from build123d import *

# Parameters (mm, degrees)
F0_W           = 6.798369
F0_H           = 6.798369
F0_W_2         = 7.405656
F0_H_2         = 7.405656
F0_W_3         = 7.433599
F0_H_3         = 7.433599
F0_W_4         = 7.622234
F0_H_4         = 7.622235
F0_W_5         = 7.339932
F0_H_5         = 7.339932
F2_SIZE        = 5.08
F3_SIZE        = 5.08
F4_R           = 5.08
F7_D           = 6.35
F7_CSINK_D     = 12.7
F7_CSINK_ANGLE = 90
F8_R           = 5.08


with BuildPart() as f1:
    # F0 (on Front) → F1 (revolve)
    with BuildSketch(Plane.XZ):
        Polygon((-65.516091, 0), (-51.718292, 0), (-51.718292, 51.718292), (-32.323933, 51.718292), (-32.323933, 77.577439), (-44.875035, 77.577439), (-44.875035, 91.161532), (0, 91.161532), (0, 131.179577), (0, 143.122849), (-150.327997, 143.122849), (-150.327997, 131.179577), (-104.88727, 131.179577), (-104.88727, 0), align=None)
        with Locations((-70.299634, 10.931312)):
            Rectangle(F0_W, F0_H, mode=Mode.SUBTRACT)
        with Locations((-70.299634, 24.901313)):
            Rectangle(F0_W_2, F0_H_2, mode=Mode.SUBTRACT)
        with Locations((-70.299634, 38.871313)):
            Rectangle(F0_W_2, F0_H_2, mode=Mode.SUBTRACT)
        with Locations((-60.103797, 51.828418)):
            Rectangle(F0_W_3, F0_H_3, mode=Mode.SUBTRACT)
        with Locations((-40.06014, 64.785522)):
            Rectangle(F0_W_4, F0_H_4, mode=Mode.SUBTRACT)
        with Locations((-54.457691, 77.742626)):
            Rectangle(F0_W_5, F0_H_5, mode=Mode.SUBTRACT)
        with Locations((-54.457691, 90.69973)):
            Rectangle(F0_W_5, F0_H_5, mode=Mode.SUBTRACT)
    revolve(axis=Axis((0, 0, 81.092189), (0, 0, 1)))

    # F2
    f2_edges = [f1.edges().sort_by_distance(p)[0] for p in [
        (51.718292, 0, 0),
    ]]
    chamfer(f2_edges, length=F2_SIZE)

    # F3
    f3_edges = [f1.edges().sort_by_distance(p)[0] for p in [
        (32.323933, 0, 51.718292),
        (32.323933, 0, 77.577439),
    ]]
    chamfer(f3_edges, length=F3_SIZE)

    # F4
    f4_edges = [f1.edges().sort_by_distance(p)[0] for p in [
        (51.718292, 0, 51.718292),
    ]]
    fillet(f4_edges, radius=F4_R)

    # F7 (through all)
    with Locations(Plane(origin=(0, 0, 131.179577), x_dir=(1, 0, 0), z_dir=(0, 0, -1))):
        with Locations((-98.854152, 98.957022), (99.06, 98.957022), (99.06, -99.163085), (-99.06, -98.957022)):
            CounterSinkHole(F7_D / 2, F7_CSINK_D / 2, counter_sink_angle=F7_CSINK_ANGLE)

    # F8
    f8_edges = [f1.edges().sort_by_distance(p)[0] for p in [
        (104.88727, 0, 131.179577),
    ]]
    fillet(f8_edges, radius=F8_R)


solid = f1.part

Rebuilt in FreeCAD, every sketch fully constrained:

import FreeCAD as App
import Part
import Sketcher

V = App.Vector
Q = App.Units.Quantity


def edges_at(feature, points):
    """Names of the edges that pass closest to the given points."""
    edges = feature.Shape.Edges
    near = lambda p: min(range(len(edges)), key=lambda i: edges[i].distToShape(Part.Vertex(*p))[0])
    return sorted({f"Edge{near(p) + 1}" for p in points})

doc = App.newDocument("Part")
params = doc.addObject("Spreadsheet::Sheet", "Params")
for row, (alias, value) in enumerate([
    ("revolution_angle", "360 deg"),
    ("chamfer_size", "0.2 in"),
    ("chamfer2_size", "0.2 in"),
    ("fillet_radius", "0.2 in"),
    ("sketch2_diameter", "0.25 in"),
    ("hole_diameter", "0.25 in"),
    ("hole_csink_diameter", "0.5 in"),
    ("fillet2_radius", "0.2 in"),
], start=1):
    params.set(f"A{row}", alias)
    params.set(f"B{row}", "=" + value)
    params.setAlias(f"B{row}", alias)

body = doc.addObject("PartDesign::Body", "Body")

sketch1 = body.newObject("Sketcher::SketchObject", "Sketch")
sketch1.AttachmentSupport = (doc.getObject("XZ_Plane"), [""])
sketch1.MapMode = "FlatFace"
sketch1.addGeometry(Part.LineSegment(V(-51.718292, 0, 0), V(-51.718292, 51.718292, 0)), False)
sketch1.addGeometry(Part.LineSegment(V(-51.718292, 51.718292, 0), V(-32.323933, 51.718292, 0)), False)
sketch1.addGeometry(Part.LineSegment(V(-32.323933, 51.718292, 0), V(-32.323933, 77.577439, 0)), False)
sketch1.addGeometry(Part.LineSegment(V(-32.323933, 77.577439, 0), V(-44.875035, 77.577439, 0)), False)
sketch1.addGeometry(Part.LineSegment(V(-44.875035, 77.577439, 0), V(-44.875035, 91.161532, 0)), False)
sketch1.addGeometry(Part.LineSegment(V(-44.875035, 91.161532, 0), V(0, 91.161532, 0)), False)
sketch1.addGeometry(Part.LineSegment(V(0, 91.161532, 0), V(0, 143.122849, 0)), False)
sketch1.addGeometry(Part.LineSegment(V(0, 143.122849, 0), V(-150.327997, 143.122849, 0)), False)
sketch1.addGeometry(Part.LineSegment(V(-150.327997, 143.122849, 0), V(-150.327997, 131.179577, 0)), False)
sketch1.addGeometry(Part.LineSegment(V(-150.327997, 131.179577, 0), V(-104.88727, 131.179577, 0)), False)
sketch1.addGeometry(Part.LineSegment(V(-104.88727, 131.179577, 0), V(-104.88727, 0, 0)), False)
sketch1.addGeometry(Part.LineSegment(V(-104.88727, 0, 0), V(-51.718292, 0, 0)), False)
sketch1.addGeometry(Part.LineSegment(V(-66.900449, 7.532127, 0), V(-73.698819, 7.532127, 0)), False)
sketch1.addGeometry(Part.LineSegment(V(-73.698819, 7.532127, 0), V(-73.698819, 14.330497, 0)), False)
sketch1.addGeometry(Part.LineSegment(V(-73.698819, 14.330497, 0), V(-66.900449, 14.330497, 0)), False)
sketch1.addGeometry(Part.LineSegment(V(-66.900449, 14.330497, 0), V(-66.900449, 7.532127, 0)), False)
sketch1.addGeometry(Part.LineSegment(V(-66.596806, 21.198485, 0), V(-74.002462, 21.198485, 0)), False)
sketch1.addGeometry(Part.LineSegment(V(-74.002462, 21.198485, 0), V(-74.002462, 28.604141, 0)), False)
sketch1.addGeometry(Part.LineSegment(V(-74.002462, 28.604141, 0), V(-66.596806, 28.604141, 0)), False)
sketch1.addGeometry(Part.LineSegment(V(-66.596806, 28.604141, 0), V(-66.596806, 21.198485, 0)), False)
sketch1.addGeometry(Part.LineSegment(V(-66.596806, 35.168485, 0), V(-74.002462, 35.168485, 0)), False)
sketch1.addGeometry(Part.LineSegment(V(-74.002462, 35.168485, 0), V(-74.002462, 42.574141, 0)), False)
sketch1.addGeometry(Part.LineSegment(V(-74.002462, 42.574141, 0), V(-66.596806, 42.574141, 0)), False)
sketch1.addGeometry(Part.LineSegment(V(-66.596806, 42.574141, 0), V(-66.596806, 35.168485, 0)), False)
sketch1.addGeometry(Part.LineSegment(V(-56.386997, 48.111618, 0), V(-63.820597, 48.111618, 0)), False)
sketch1.addGeometry(Part.LineSegment(V(-63.820597, 48.111618, 0), V(-63.820597, 55.545217, 0)), False)
sketch1.addGeometry(Part.LineSegment(V(-63.820597, 55.545217, 0), V(-56.386997, 55.545217, 0)), False)
sketch1.addGeometry(Part.LineSegment(V(-56.386997, 55.545217, 0), V(-56.386997, 48.111618, 0)), False)
sketch1.addGeometry(Part.LineSegment(V(-36.249023, 60.974404, 0), V(-43.871257, 60.974404, 0)), False)
sketch1.addGeometry(Part.LineSegment(V(-43.871257, 60.974404, 0), V(-43.871257, 68.596639, 0)), False)
sketch1.addGeometry(Part.LineSegment(V(-43.871257, 68.596639, 0), V(-36.249023, 68.596639, 0)), False)
sketch1.addGeometry(Part.LineSegment(V(-36.249023, 68.596639, 0), V(-36.249023, 60.974404, 0)), False)
sketch1.addGeometry(Part.LineSegment(V(-50.787725, 74.07266, 0), V(-58.127657, 74.07266, 0)), False)
sketch1.addGeometry(Part.LineSegment(V(-58.127657, 74.07266, 0), V(-58.127657, 81.412592, 0)), False)
sketch1.addGeometry(Part.LineSegment(V(-58.127657, 81.412592, 0), V(-50.787725, 81.412592, 0)), False)
sketch1.addGeometry(Part.LineSegment(V(-50.787725, 81.412592, 0), V(-50.787725, 74.07266, 0)), False)
sketch1.addGeometry(Part.LineSegment(V(-50.787725, 87.029764, 0), V(-58.127657, 87.029764, 0)), False)
sketch1.addGeometry(Part.LineSegment(V(-58.127657, 87.029764, 0), V(-58.127657, 94.369696, 0)), False)
sketch1.addGeometry(Part.LineSegment(V(-58.127657, 94.369696, 0), V(-50.787725, 94.369696, 0)), False)
sketch1.addGeometry(Part.LineSegment(V(-50.787725, 94.369696, 0), V(-50.787725, 87.029764, 0)), False)
sketch1.addConstraint(Sketcher.Constraint("Coincident", 0, 2, 1, 1))
sketch1.addConstraint(Sketcher.Constraint("Coincident", 1, 2, 2, 1))
sketch1.addConstraint(Sketcher.Constraint("Coincident", 2, 2, 3, 1))
sketch1.addConstraint(Sketcher.Constraint("Coincident", 3, 2, 4, 1))
sketch1.addConstraint(Sketcher.Constraint("Coincident", 4, 2, 5, 1))
sketch1.addConstraint(Sketcher.Constraint("Coincident", 5, 2, 6, 1))
sketch1.addConstraint(Sketcher.Constraint("Coincident", 6, 2, 7, 1))
sketch1.addConstraint(Sketcher.Constraint("Coincident", 7, 2, 8, 1))
sketch1.addConstraint(Sketcher.Constraint("Coincident", 8, 2, 9, 1))
sketch1.addConstraint(Sketcher.Constraint("Coincident", 9, 2, 10, 1))
sketch1.addConstraint(Sketcher.Constraint("Coincident", 10, 2, 11, 1))
sketch1.addConstraint(Sketcher.Constraint("Coincident", 11, 2, 0, 1))
sketch1.addConstraint(Sketcher.Constraint("Coincident", 12, 2, 13, 1))
sketch1.addConstraint(Sketcher.Constraint("Coincident", 13, 2, 14, 1))
sketch1.addConstraint(Sketcher.Constraint("Coincident", 14, 2, 15, 1))
sketch1.addConstraint(Sketcher.Constraint("Coincident", 15, 2, 12, 1))
sketch1.addConstraint(Sketcher.Constraint("Coincident", 16, 2, 17, 1))
sketch1.addConstraint(Sketcher.Constraint("Coincident", 17, 2, 18, 1))
sketch1.addConstraint(Sketcher.Constraint("Coincident", 18, 2, 19, 1))
sketch1.addConstraint(Sketcher.Constraint("Coincident", 19, 2, 16, 1))
sketch1.addConstraint(Sketcher.Constraint("Coincident", 20, 2, 21, 1))
sketch1.addConstraint(Sketcher.Constraint("Coincident", 21, 2, 22, 1))
sketch1.addConstraint(Sketcher.Constraint("Coincident", 22, 2, 23, 1))
sketch1.addConstraint(Sketcher.Constraint("Coincident", 23, 2, 20, 1))
sketch1.addConstraint(Sketcher.Constraint("Coincident", 24, 2, 25, 1))
sketch1.addConstraint(Sketcher.Constraint("Coincident", 25, 2, 26, 1))
sketch1.addConstraint(Sketcher.Constraint("Coincident", 26, 2, 27, 1))
sketch1.addConstraint(Sketcher.Constraint("Coincident", 27, 2, 24, 1))
sketch1.addConstraint(Sketcher.Constraint("Coincident", 28, 2, 29, 1))
sketch1.addConstraint(Sketcher.Constraint("Coincident", 29, 2, 30, 1))
sketch1.addConstraint(Sketcher.Constraint("Coincident", 30, 2, 31, 1))
sketch1.addConstraint(Sketcher.Constraint("Coincident", 31, 2, 28, 1))
sketch1.addConstraint(Sketcher.Constraint("Coincident", 32, 2, 33, 1))
sketch1.addConstraint(Sketcher.Constraint("Coincident", 33, 2, 34, 1))
sketch1.addConstraint(Sketcher.Constraint("Coincident", 34, 2, 35, 1))
sketch1.addConstraint(Sketcher.Constraint("Coincident", 35, 2, 32, 1))
sketch1.addConstraint(Sketcher.Constraint("Coincident", 36, 2, 37, 1))
sketch1.addConstraint(Sketcher.Constraint("Coincident", 37, 2, 38, 1))
sketch1.addConstraint(Sketcher.Constraint("Coincident", 38, 2, 39, 1))
sketch1.addConstraint(Sketcher.Constraint("Coincident", 39, 2, 36, 1))
sketch1.addConstraint(Sketcher.Constraint("Vertical", 0))
sketch1.addConstraint(Sketcher.Constraint("Horizontal", 1))
sketch1.addConstraint(Sketcher.Constraint("Vertical", 2))
sketch1.addConstraint(Sketcher.Constraint("Horizontal", 3))
sketch1.addConstraint(Sketcher.Constraint("Vertical", 4))
sketch1.addConstraint(Sketcher.Constraint("Horizontal", 5))
sketch1.addConstraint(Sketcher.Constraint("Vertical", 6))
sketch1.addConstraint(Sketcher.Constraint("Horizontal", 7))
sketch1.addConstraint(Sketcher.Constraint("Vertical", 8))
sketch1.addConstraint(Sketcher.Constraint("Horizontal", 9))
sketch1.addConstraint(Sketcher.Constraint("Vertical", 10))
sketch1.addConstraint(Sketcher.Constraint("Horizontal", 11))
sketch1.addConstraint(Sketcher.Constraint("Horizontal", 12))
sketch1.addConstraint(Sketcher.Constraint("Vertical", 13))
sketch1.addConstraint(Sketcher.Constraint("Horizontal", 14))
sketch1.addConstraint(Sketcher.Constraint("Vertical", 15))
sketch1.addConstraint(Sketcher.Constraint("Horizontal", 16))
sketch1.addConstraint(Sketcher.Constraint("Vertical", 17))
sketch1.addConstraint(Sketcher.Constraint("Horizontal", 18))
sketch1.addConstraint(Sketcher.Constraint("Vertical", 19))
sketch1.addConstraint(Sketcher.Constraint("Horizontal", 20))
sketch1.addConstraint(Sketcher.Constraint("Vertical", 21))
sketch1.addConstraint(Sketcher.Constraint("Horizontal", 22))
sketch1.addConstraint(Sketcher.Constraint("Vertical", 23))
sketch1.addConstraint(Sketcher.Constraint("Horizontal", 24))
sketch1.addConstraint(Sketcher.Constraint("Vertical", 25))
sketch1.addConstraint(Sketcher.Constraint("Horizontal", 26))
sketch1.addConstraint(Sketcher.Constraint("Vertical", 27))
sketch1.addConstraint(Sketcher.Constraint("Horizontal", 28))
sketch1.addConstraint(Sketcher.Constraint("Vertical", 29))
sketch1.addConstraint(Sketcher.Constraint("Horizontal", 30))
sketch1.addConstraint(Sketcher.Constraint("Vertical", 31))
sketch1.addConstraint(Sketcher.Constraint("Horizontal", 32))
sketch1.addConstraint(Sketcher.Constraint("Vertical", 33))
sketch1.addConstraint(Sketcher.Constraint("Horizontal", 34))
sketch1.addConstraint(Sketcher.Constraint("Vertical", 35))
sketch1.addConstraint(Sketcher.Constraint("Horizontal", 36))
sketch1.addConstraint(Sketcher.Constraint("Vertical", 37))
sketch1.addConstraint(Sketcher.Constraint("Horizontal", 38))
sketch1.addConstraint(Sketcher.Constraint("Vertical", 39))
sketch1.addConstraint(Sketcher.Constraint("PointOnObject", 5, 2, -2))
sketch1.addConstraint(Sketcher.Constraint("PointOnObject", 10, 2, -1))
sketch1.addConstraint(Sketcher.Constraint("Vertical", 17, 2, 20, 2))
sketch1.addConstraint(Sketcher.Constraint("Vertical", 19, 2, 22, 2))
sketch1.addConstraint(Sketcher.Constraint("Vertical", 33, 2, 36, 2))
sketch1.addConstraint(Sketcher.Constraint("Vertical", 35, 2, 38, 2))
sketch1.addConstraint(Sketcher.Constraint("Equal", 14, 13))
sketch1.addConstraint(Sketcher.Constraint("Equal", 22, 17))
sketch1.addConstraint(Sketcher.Constraint("Equal", 19, 21))
sketch1.addConstraint(Sketcher.Constraint("Equal", 26, 25))
sketch1.addConstraint(Sketcher.Constraint("Equal", 30, 29))
sketch1.addConstraint(Sketcher.Constraint("Equal", 38, 33))
sketch1.addConstraint(Sketcher.Constraint("Equal", 35, 37))
sketch1.addConstraint(Sketcher.Constraint("DistanceY", 16, 2, 20, 2, Q("0.55 in")))
sketch1.addConstraint(Sketcher.Constraint("DistanceX", 24, 2, 24, 1, Q("7.433599 mm")))
sketch1.addConstraint(Sketcher.Constraint("DistanceX", 1, 1, 1, 2, Q("19.394359 mm")))
sketch1.addConstraint(Sketcher.Constraint("DistanceX", 11, 1, 11, 2, Q("53.168978 mm")))
sketch1.addConstraint(Sketcher.Constraint("DistanceX", 12, 2, 12, 1, Q("6.798369 mm")))
sketch1.addConstraint(Sketcher.Constraint("DistanceX", 32, 2, 32, 1, Q("7.339932 mm")))
sketch1.addConstraint(Sketcher.Constraint("DistanceY", 0, 1, 0, 2, Q("51.718292 mm")))
sketch1.addConstraint(Sketcher.Constraint("DistanceY", 29, 2, 3, 2, Q("8.9808 mm")))
sketch1.addConstraint(Sketcher.Constraint("DistanceX", 32, 2, 29, 2, Q("14.2564 mm")))
sketch1.addConstraint(Sketcher.Constraint("DistanceX", 3, 2, 3, 1, Q("12.551102 mm")))
sketch1.addConstraint(Sketcher.Constraint("DistanceX", 5, 1, 5, 2, Q("44.875035 mm")))
sketch1.addConstraint(Sketcher.Constraint("DistanceX", 7, 2, 7, 1, Q("150.327997 mm")))
sketch1.addConstraint(Sketcher.Constraint("DistanceX", 16, 2, 16, 1, Q("7.405656 mm")))
sketch1.addConstraint(Sketcher.Constraint("DistanceX", 28, 2, 28, 1, Q("7.622234 mm")))
sketch1.addConstraint(Sketcher.Constraint("DistanceY", 2, 1, 2, 2, Q("25.859147 mm")))
sketch1.addConstraint(Sketcher.Constraint("DistanceY", 4, 1, 4, 2, Q("13.584093 mm")))
sketch1.addConstraint(Sketcher.Constraint("DistanceY", 6, 1, 6, 2, Q("51.961317 mm")))
sketch1.addConstraint(Sketcher.Constraint("DistanceY", 8, 2, 8, 1, Q("11.943272 mm")))
sketch1.addConstraint(Sketcher.Constraint("DistanceX", 12, 2, -1, 1, Q("73.698819 mm")))
sketch1.addConstraint(Sketcher.Constraint("DistanceX", 16, 2, -1, 1, Q("74.002462 mm")))
sketch1.addConstraint(Sketcher.Constraint("DistanceY", -1, 1, 17, 2, Q("28.604141 mm")))
sketch1.addConstraint(Sketcher.Constraint("DistanceY", -1, 1, 24, 2, Q("48.111618 mm")))
sketch1.addConstraint(Sketcher.Constraint("DistanceY", -1, 1, 32, 2, Q("74.07266 mm")))
sketch1.addConstraint(Sketcher.Constraint("DistanceY", 12, 2, 3, 2, Q("70.045311 mm")))
sketch1.addConstraint(Sketcher.Constraint("DistanceX", 22, 2, 24, 2, Q("2.77621 mm")))
sketch1.addConstraint(Sketcher.Constraint("DistanceX", 26, 2, 28, 2, Q("12.51574 mm")))
sketch1.addConstraint(Sketcher.Constraint("DistanceY", 33, 2, 36, 2, Q("5.617172 mm")))
revolution = body.newObject("PartDesign::Revolution", "Revolution")
revolution.Profile = sketch1
revolution.ReferenceAxis = (sketch1, ["V_Axis"])
revolution.setExpression("Angle", "Params.revolution_angle")
doc.recompute()

chamfer = body.newObject("PartDesign::Chamfer", "Chamfer")
chamfer.Base = (revolution, edges_at(revolution, [(51.718, 0, 0)]))
chamfer.setExpression("Size", "Params.chamfer_size")
doc.recompute()

chamfer2 = body.newObject("PartDesign::Chamfer", "Chamfer001")
chamfer2.Base = (chamfer, edges_at(chamfer, [(32.324, 0, 51.718), (32.324, 0, 77.577)]))
chamfer2.setExpression("Size", "Params.chamfer2_size")
doc.recompute()

fillet = body.newObject("PartDesign::Fillet", "Fillet")
fillet.Base = (chamfer2, edges_at(chamfer2, [(51.718, 0, 51.718)]))
fillet.setExpression("Radius", "Params.fillet_radius")

sketch2 = body.newObject("Sketcher::SketchObject", "Sketch001")
sketch2.AttachmentSupport = (doc.getObject("XY_Plane"), [""])
sketch2.MapMode = "FlatFace"
sketch2.AttachmentOffset = App.Placement(V(0, 0, 131.179577), App.Rotation())
sketch2.addGeometry(Part.Circle(V(-98.854152, -98.957022, 0), V(0, 0, 1), 3.175), False)
sketch2.addGeometry(Part.Circle(V(99.06, -98.957022, 0), V(0, 0, 1), 3.175), False)
sketch2.addGeometry(Part.Circle(V(99.06, 99.163085, 0), V(0, 0, 1), 3.175), False)
sketch2.addGeometry(Part.Circle(V(-99.06, 98.957022, 0), V(0, 0, 1), 3.175), False)
sketch2.addConstraint(Sketcher.Constraint("Equal", 0, 1))
sketch2.addConstraint(Sketcher.Constraint("Equal", 1, 2))
sketch2.addConstraint(Sketcher.Constraint("Equal", 2, 3))
sketch2.addConstraint(Sketcher.Constraint("Symmetric", 1, 3, 3, 3, -1, 1))
sketch2.addConstraint(Sketcher.Constraint("Horizontal", 0, 3, 1, 3))
sketch2.addConstraint(Sketcher.Constraint("Vertical", 1, 3, 2, 3))
sketch2.addConstraint(Sketcher.Constraint("Diameter", 0, Q("0.25 in")))
sketch2.addConstraint(Sketcher.Constraint("DistanceX", -1, 1, 1, 3, Q("3.9 in")))
sketch2.addConstraint(Sketcher.Constraint("DistanceX", 0, 3, -1, 1, Q("98.854152 mm")))
sketch2.addConstraint(Sketcher.Constraint("DistanceY", 0, 3, -1, 1, Q("98.957022 mm")))
sketch2.addConstraint(Sketcher.Constraint("DistanceY", -1, 1, 2, 3, Q("99.163085 mm")))
sketch2.setExpression("Constraints[6]", "Params.sketch2_diameter")
doc.recompute()
hole = body.newObject("PartDesign::Hole", "Hole")
hole.Profile = sketch2
hole.ThreadType = "None"
hole.setExpression("Diameter", "Params.hole_diameter")
hole.DepthType = "ThroughAll"
hole.HoleCutType = "Countersink"
hole.setExpression("HoleCutDiameter", "Params.hole_csink_diameter")
hole.HoleCutCountersinkAngle = 90
hole.Reversed = True
doc.recompute()

fillet2 = body.newObject("PartDesign::Fillet", "Fillet001")
fillet2.Base = (hole, edges_at(hole, [(104.887, 0, 131.18)]))
fillet2.setExpression("Radius", "Params.fillet2_radius")

doc.recompute()
